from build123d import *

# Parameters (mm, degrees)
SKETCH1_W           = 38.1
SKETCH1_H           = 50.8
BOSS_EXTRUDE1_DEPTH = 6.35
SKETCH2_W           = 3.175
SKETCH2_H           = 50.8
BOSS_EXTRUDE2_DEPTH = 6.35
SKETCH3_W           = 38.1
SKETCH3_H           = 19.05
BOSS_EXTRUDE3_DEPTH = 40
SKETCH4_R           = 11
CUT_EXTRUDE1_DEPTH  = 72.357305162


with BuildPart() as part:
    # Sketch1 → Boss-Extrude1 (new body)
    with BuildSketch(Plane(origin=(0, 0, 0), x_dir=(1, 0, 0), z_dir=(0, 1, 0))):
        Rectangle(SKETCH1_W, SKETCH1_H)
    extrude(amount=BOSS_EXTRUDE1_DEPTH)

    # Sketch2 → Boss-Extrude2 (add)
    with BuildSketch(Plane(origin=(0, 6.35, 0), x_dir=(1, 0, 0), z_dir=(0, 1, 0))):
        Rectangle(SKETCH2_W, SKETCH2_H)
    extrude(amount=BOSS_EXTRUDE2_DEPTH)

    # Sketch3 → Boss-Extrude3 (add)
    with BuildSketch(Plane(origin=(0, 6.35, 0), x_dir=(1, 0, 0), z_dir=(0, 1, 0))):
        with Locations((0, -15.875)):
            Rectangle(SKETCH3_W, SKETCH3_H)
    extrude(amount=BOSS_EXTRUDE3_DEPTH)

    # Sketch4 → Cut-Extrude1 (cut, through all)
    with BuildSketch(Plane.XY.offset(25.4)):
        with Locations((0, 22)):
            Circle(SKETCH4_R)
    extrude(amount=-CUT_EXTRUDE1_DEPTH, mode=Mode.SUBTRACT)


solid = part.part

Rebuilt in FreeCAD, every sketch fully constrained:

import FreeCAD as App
import Part
import Sketcher

V = App.Vector
Q = App.Units.Quantity

doc = App.newDocument("Part")
body = doc.addObject("PartDesign::Body", "Body")

sketch1 = body.newObject("Sketcher::SketchObject", "Sketch")
sketch1.AttachmentSupport = (doc.getObject("XZ_Plane"), [""])
sketch1.MapMode = "FlatFace"
sketch1.addGeometry([
    Part.LineSegment(V(-19, -25, 0), V(-19, 25, 0)),
    Part.LineSegment(V(-19, 25, 0), V(19, 25, 0)),
    Part.LineSegment(V(19, 25, 0), V(19, -25, 0)),
    Part.LineSegment(V(19, -25, 0), V(-19, -25, 0)),
], False)
sketch1.addConstraint([
    Sketcher.Constraint("Coincident", 0, 2, 1, 1),
    Sketcher.Constraint("Coincident", 1, 2, 2, 1),
    Sketcher.Constraint("Coincident", 2, 2, 3, 1),
    Sketcher.Constraint("Coincident", 3, 2, 0, 1),
    Sketcher.Constraint("Vertical", 0),
    Sketcher.Constraint("Horizontal", 1),
    Sketcher.Constraint("Vertical", 2),
    Sketcher.Constraint("Horizontal", 3),
    Sketcher.Constraint("Symmetric", 0, 2, 2, 2, -1, 1),
    Sketcher.Constraint("DistanceY", 0, 1, 0, 2, Q("2 in")),
    Sketcher.Constraint("DistanceX", 1, 1, 1, 2, Q("1.5 in")),
])
pad1 = body.newObject("PartDesign::Pad", "Pad")
pad1.Profile = sketch1
pad1.Length = Q("0.25 in")
pad1.Reversed = True

sketch2 = body.newObject("Sketcher::SketchObject", "Sketch001")
sketch2.AttachmentSupport = (doc.getObject("XZ_Plane"), [""])
sketch2.MapMode = "FlatFace"
sketch2.AttachmentOffset = App.Placement(V(0, 0, -0.25 * 25.4), App.Rotation())
sketch2.addGeometry([
    Part.LineSegment(V(-1.6, -25.4, 0), V(-1.6, 25.4, 0)),
    Part.LineSegment(V(-1.6, 25.4, 0), V(1.6, 25.4, 0)),
    Part.LineSegment(V(1.6, 25.4, 0), V(1.6, -25.4, 0)),
    Part.LineSegment(V(1.6, -25.4, 0), V(-1.6, -25.4, 0)),
], False)
sketch2.addConstraint([
    Sketcher.Constraint("Coincident", 0, 2, 1, 1),
    Sketcher.Constraint("Coincident", 1, 2, 2, 1),
    Sketcher.Constraint("Coincident", 2, 2, 3, 1),
    Sketcher.Constraint("Coincident", 3, 2, 0, 1),
    Sketcher.Constraint("Vertical", 0),
    Sketcher.Constraint("Horizontal", 1),
    Sketcher.Constraint("Vertical", 2),
    Sketcher.Constraint("Horizontal", 3),
    Sketcher.Constraint("Symmetric", 0, 2, 2, 2, -1, 1),
    Sketcher.Constraint("DistanceY", 0, 1, 0, 2, Q("2 in")),
    Sketcher.Constraint("DistanceX", 1, 1, 1, 2, Q("0.125 in")),
])
pad2 = body.newObject("PartDesign::Pad", "Pad001")
pad2.Profile = sketch2
pad2.Length = Q("0.25 in")
pad2.Reversed = True

sketch3 = body.newObject("Sketcher::SketchObject", "Sketch002")
sketch3.AttachmentSupport = (doc.getObject("XZ_Plane"), [""])
sketch3.MapMode = "FlatFace"
sketch3.AttachmentOffset = App.Placement(V(0, 0, -0.25 * 25.4), App.Rotation())
sketch3.addGeometry([
    Part.LineSegment(V(-19, 6, 0), V(-19, 25, 0)),
    Part.LineSegment(V(-19, 25, 0), V(19, 25, 0)),
    Part.LineSegment(V(19, 25, 0), V(19, 6, 0)),
    Part.LineSegment(V(19, 6, 0), V(-19, 6, 0)),
], False)
sketch3.addConstraint([
    Sketcher.Constraint("Coincident", 0, 2, 1, 1),
    Sketcher.Constraint("Coincident", 1, 2, 2, 1),
    Sketcher.Constraint("Coincident", 2, 2, 3, 1),
    Sketcher.Constraint("Coincident", 3, 2, 0, 1),
    Sketcher.Constraint("Vertical", 0),
    Sketcher.Constraint("Horizontal", 1),
    Sketcher.Constraint("Vertical", 2),
    Sketcher.Constraint("Horizontal", 3),
    Sketcher.Constraint("DistanceX", 1, 1, 1, 2, Q("1.5 in")),
    Sketcher.Constraint("DistanceY", -1, 1, 0, 2, Q("1 in")),
    Sketcher.Constraint("DistanceY", 0, 1, 0, 2, Q("0.75 in")),
    Sketcher.Constraint("DistanceX", 0, 2, -1, 1, Q("0.75 in")),
])
pad3 = body.newObject("PartDesign::Pad", "Pad002")
pad3.Profile = sketch3
pad3.Length = 40
pad3.Reversed = True

sketch4 = body.newObject("Sketcher::SketchObject", "Sketch003")
sketch4.AttachmentSupport = (doc.getObject("XY_Plane"), [""])
sketch4.MapMode = "FlatFace"
sketch4.AttachmentOffset = App.Placement(V(0, 0, 1 * 25.4), App.Rotation())
sketch4.addGeometry(Part.Circle(V(0, 22, 0), V(0, 0, 1), 11), False)
sketch4.addConstraint([
    Sketcher.Constraint("PointOnObject", 0, 3, -2),
    Sketcher.Constraint("Diameter", 0, 22.0),
    Sketcher.Constraint("DistanceY", -1, 1, 0, 3, 22.0),
])
pocket1 = body.newObject("PartDesign::Pocket", "Pocket")
pocket1.Profile = sketch4
pocket1.Type = "ThroughAll"

doc.recompute()
